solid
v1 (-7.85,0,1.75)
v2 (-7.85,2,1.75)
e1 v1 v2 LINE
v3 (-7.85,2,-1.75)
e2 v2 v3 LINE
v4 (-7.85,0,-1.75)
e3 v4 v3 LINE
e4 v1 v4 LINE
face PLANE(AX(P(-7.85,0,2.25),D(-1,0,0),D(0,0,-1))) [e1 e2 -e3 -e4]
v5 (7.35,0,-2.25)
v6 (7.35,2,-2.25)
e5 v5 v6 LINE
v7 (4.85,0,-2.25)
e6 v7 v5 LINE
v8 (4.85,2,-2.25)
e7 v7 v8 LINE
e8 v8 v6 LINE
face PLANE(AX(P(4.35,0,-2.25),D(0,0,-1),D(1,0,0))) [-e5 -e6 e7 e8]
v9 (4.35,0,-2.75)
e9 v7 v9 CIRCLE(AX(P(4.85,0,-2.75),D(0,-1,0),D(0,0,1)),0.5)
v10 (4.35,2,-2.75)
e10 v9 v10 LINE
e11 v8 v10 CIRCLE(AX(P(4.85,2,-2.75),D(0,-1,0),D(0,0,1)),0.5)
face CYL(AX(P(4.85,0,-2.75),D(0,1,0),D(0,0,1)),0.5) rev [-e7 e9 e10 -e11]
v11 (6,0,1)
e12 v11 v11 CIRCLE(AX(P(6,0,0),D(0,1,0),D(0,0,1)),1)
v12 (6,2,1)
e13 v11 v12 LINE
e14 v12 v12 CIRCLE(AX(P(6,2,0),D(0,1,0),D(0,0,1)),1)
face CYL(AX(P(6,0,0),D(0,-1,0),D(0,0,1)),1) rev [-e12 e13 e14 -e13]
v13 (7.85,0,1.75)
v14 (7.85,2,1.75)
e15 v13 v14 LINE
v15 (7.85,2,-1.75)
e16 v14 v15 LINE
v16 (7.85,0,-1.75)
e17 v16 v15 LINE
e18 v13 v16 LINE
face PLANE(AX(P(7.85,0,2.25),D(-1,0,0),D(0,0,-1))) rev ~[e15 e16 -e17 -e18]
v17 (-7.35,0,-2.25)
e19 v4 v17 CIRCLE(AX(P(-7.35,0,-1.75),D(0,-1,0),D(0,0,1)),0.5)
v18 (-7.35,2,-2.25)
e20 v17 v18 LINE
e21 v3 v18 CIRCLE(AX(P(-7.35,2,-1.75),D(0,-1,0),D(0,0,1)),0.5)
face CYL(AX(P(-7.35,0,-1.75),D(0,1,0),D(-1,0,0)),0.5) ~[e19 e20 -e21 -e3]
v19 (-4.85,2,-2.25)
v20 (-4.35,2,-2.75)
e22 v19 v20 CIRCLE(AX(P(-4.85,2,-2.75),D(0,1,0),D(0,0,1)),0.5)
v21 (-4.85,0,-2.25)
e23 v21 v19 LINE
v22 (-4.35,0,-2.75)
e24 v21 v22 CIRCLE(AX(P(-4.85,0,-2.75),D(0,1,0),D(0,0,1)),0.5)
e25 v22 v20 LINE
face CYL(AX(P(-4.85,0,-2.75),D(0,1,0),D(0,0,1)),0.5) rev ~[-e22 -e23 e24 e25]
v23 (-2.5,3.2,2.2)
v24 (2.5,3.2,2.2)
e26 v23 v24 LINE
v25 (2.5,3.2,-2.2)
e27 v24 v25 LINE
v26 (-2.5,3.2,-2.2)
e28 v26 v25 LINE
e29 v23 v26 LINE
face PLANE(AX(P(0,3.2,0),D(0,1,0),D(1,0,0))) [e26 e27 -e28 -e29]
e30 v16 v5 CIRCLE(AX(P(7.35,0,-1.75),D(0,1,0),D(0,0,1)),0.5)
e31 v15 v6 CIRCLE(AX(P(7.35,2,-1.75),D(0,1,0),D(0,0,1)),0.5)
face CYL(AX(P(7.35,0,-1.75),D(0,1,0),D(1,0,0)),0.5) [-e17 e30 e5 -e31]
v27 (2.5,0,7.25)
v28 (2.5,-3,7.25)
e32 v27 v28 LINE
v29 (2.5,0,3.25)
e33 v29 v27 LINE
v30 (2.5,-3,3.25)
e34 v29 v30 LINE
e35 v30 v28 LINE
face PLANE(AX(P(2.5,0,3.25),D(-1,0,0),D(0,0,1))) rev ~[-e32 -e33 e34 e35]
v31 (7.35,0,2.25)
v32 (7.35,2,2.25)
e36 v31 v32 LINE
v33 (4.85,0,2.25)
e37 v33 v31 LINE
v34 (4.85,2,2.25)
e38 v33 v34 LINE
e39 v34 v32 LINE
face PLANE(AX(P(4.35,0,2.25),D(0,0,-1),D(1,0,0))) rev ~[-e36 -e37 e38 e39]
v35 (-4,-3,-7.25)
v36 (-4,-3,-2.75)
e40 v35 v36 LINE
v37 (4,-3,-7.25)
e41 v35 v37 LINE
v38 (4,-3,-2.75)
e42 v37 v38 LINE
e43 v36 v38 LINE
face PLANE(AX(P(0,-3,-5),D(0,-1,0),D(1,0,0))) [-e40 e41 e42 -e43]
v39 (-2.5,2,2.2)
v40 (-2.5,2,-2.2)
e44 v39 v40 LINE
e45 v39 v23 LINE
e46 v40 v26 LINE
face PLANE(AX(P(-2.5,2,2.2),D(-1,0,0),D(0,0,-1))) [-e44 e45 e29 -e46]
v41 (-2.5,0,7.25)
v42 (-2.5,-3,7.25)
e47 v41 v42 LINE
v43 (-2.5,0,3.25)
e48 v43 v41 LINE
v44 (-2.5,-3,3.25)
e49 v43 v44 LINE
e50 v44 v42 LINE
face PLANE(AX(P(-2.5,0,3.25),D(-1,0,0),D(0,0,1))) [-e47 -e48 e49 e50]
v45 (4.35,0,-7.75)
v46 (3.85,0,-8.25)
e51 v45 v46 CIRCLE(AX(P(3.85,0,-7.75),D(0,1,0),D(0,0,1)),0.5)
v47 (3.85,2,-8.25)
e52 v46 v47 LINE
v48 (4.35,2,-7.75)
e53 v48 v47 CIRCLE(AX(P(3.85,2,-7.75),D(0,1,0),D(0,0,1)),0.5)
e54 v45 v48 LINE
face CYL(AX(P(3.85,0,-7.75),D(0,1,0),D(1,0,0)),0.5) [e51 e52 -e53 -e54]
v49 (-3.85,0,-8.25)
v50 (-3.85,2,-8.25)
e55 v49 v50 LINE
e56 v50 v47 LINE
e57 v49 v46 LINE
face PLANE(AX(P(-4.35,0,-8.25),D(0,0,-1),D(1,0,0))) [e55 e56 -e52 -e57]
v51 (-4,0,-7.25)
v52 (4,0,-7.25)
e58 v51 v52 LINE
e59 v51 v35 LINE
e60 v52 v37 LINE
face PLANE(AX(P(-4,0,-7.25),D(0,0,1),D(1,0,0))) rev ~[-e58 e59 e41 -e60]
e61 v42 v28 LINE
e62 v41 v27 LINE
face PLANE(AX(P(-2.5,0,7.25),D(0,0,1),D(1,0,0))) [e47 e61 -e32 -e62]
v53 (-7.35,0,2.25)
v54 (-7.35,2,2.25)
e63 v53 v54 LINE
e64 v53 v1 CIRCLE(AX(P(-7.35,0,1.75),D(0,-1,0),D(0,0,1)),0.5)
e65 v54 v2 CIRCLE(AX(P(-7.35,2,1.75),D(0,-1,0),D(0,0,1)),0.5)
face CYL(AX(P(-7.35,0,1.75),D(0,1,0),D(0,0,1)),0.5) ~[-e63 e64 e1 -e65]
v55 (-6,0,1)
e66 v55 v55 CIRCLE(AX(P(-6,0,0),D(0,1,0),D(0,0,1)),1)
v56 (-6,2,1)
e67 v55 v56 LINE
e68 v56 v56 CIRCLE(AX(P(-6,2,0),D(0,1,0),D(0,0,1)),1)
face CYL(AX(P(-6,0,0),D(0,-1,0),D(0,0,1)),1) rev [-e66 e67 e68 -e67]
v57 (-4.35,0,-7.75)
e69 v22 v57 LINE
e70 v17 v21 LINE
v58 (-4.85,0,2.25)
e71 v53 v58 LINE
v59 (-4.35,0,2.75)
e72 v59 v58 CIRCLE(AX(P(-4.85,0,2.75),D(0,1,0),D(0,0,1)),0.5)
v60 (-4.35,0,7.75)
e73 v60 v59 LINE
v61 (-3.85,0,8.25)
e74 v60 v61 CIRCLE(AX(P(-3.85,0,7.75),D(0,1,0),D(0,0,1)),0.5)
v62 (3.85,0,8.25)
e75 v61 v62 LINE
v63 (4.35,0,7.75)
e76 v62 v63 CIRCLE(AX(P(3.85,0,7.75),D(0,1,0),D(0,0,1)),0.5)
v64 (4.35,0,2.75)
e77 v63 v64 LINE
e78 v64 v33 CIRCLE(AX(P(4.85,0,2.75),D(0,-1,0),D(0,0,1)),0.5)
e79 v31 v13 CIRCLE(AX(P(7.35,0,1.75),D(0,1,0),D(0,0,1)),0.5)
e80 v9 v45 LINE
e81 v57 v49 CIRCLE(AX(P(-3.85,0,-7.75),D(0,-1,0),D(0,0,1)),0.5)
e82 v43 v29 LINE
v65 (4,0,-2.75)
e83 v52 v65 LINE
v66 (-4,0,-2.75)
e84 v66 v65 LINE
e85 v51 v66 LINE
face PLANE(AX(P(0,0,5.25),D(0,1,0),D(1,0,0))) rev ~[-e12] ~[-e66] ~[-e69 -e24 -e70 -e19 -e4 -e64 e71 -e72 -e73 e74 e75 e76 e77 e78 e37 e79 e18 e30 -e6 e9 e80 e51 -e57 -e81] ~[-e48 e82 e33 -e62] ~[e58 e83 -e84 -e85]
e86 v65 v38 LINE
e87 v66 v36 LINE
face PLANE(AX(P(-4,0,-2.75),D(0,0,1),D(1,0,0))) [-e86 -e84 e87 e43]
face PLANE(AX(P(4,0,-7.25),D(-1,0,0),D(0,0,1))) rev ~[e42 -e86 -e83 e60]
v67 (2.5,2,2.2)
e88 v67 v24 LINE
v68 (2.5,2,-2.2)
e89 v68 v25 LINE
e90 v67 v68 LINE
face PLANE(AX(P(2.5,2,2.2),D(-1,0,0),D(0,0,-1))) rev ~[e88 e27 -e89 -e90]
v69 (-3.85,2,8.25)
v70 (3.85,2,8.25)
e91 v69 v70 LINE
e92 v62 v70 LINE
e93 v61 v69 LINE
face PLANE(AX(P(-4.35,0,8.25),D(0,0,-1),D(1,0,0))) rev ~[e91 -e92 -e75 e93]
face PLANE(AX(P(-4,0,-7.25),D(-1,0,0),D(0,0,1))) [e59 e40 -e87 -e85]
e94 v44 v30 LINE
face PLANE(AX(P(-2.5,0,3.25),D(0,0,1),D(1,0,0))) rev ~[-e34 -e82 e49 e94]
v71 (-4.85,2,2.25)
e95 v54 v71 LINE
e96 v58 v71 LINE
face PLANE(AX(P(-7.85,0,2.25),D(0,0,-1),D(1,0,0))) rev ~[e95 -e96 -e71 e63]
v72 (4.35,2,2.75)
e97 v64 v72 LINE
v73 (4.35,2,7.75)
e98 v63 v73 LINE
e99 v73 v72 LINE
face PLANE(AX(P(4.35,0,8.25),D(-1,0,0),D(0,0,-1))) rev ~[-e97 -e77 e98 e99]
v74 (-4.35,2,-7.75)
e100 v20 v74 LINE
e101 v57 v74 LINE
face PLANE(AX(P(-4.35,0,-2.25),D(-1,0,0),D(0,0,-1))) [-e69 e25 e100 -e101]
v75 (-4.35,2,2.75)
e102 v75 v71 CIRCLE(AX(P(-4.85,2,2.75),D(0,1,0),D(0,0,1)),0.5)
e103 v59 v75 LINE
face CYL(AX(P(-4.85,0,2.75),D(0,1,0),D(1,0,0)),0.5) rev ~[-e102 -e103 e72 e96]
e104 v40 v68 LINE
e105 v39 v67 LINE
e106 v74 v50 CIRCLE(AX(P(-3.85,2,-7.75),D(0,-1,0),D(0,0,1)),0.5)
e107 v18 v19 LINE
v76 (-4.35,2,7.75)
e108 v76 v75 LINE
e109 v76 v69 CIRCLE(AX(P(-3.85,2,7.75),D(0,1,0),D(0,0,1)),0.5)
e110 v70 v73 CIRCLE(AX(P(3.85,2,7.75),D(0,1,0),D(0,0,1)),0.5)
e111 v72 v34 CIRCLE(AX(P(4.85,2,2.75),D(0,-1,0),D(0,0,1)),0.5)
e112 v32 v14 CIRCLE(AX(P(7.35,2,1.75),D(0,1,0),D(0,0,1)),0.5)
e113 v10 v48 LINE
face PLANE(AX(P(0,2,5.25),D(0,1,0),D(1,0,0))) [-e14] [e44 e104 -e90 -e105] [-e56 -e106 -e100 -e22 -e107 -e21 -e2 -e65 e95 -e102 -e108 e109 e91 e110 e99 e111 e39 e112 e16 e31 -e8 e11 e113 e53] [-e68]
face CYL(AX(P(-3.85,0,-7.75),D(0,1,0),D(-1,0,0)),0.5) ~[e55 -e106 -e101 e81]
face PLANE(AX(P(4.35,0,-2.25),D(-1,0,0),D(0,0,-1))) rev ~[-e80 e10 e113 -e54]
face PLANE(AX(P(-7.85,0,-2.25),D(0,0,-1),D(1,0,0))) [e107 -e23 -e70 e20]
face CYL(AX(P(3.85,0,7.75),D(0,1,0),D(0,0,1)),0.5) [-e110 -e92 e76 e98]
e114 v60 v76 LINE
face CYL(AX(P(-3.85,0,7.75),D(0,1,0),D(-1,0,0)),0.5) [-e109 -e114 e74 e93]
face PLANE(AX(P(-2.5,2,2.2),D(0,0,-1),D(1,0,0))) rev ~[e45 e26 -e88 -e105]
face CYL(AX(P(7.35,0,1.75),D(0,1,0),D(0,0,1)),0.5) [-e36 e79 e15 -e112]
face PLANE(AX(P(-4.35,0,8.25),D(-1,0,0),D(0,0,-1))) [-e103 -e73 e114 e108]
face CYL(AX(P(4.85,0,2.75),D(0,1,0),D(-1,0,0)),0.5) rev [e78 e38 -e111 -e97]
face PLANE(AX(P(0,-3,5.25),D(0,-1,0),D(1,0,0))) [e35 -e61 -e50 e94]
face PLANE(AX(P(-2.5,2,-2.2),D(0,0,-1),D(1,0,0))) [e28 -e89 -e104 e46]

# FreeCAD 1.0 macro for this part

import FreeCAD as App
import Part
import Sketcher


def edges_at(feature, points):
    """Names of the edges that pass closest to the given points."""
    edges = feature.Shape.Edges
    near = lambda p: min(range(len(edges)), key=lambda i: edges[i].distToShape(Part.Vertex(*p))[0])
    return sorted({f"Edge{near(p) + 1}" for p in points})


def add_polygon(sketch, points):
    """Adds a closed chain of lines whose ends are joined by coincident constraints."""
    first, n = sketch.GeometryCount, len(points)
    for a, b in zip(points, points[1:] + points[:1]):
        sketch.addGeometry(Part.LineSegment(App.Vector(*a, 0), App.Vector(*b, 0)), False)
    for i in range(n):
        sketch.addConstraint(Sketcher.Constraint("Coincident", first + i, 2, first + (i + 1) % n, 1))

doc = App.newDocument("Part")
body = doc.addObject("PartDesign::Body", "Body")

sketch1 = body.newObject("Sketcher::SketchObject", "Sketch")
sketch1.AttachmentSupport = (doc.getObject("XZ_Plane"), [""])
sketch1.MapMode = "FlatFace"
add_polygon(sketch1, [(-4.3, -8.2), (-4.3, -2.2), (-7.8, -2.2), (-7.8, 2.2), (-4.3, 2.2), (-4.3, 8.2), (4.3, 8.2), (4.3, 2.2), (7.8, 2.2), (7.8, -2.2), (4.3, -2.2), (4.3, -8.2)])
sketch1.addGeometry(Part.Circle(App.Vector(-6, 0, 0), App.Vector(0, 0, 1), 1), False)
sketch1.addGeometry(Part.Circle(App.Vector(6, 0, 0), App.Vector(0, 0, 1), 1), False)
sketch1.addConstraint([
    Sketcher.Constraint("Vertical", 0),
    Sketcher.Constraint("Horizontal", 1),
    Sketcher.Constraint("Vertical", 2),
    Sketcher.Constraint("Horizontal", 3),
    Sketcher.Constraint("Vertical", 4),
    Sketcher.Constraint("Horizontal", 5),
    Sketcher.Constraint("Vertical", 6),
    Sketcher.Constraint("Horizontal", 7),
    Sketcher.Constraint("Vertical", 8),
    Sketcher.Constraint("Horizontal", 9),
    Sketcher.Constraint("Vertical", 10),
    Sketcher.Constraint("Horizontal", 11),
    Sketcher.Constraint("Equal", 12, 13),
    Sketcher.Constraint("Symmetric", 12, 3, 13, 3, -1, 1),
    Sketcher.Constraint("Symmetric", 0, 2, 6, 2, -1, 1),
    Sketcher.Constraint("Symmetric", 2, 2, 8, 2, -1, 1),
    Sketcher.Constraint("Symmetric", 4, 2, 10, 2, -1, 1),
    Sketcher.Constraint("Symmetric", 3, 2, 6, 2, -2),
    Sketcher.Constraint("PointOnObject", 12, 3, -1),
    Sketcher.Constraint("Diameter", 12, 2.0),
    Sketcher.Constraint("DistanceY", 0, 1, 0, 2, 6.0),
    Sketcher.Constraint("DistanceX", 1, 2, 1, 1, 3.5),
    Sketcher.Constraint("DistanceX", 5, 1, 5, 2, 8.7),
    Sketcher.Constraint("DistanceY", 2, 1, 2, 2, 4.5),
    Sketcher.Constraint("DistanceX", 12, 3, -1, 1, 6.0),
])
pad1 = body.newObject("PartDesign::Pad", "Pad")
pad1.Profile = sketch1
pad1.Length = 2
pad1.Reversed = True
doc.recompute()

fillet = body.newObject("PartDesign::Fillet", "Fillet")
fillet.Base = (pad1, edges_at(pad1, [
    (-4.35, 1, -8.25),
    (4.35, 1, -8.25),
    (4.35, 1, -2.25),
    (7.85, 1, -2.25),
    (7.85, 1, 2.25),
    (4.35, 1, 2.25),
    (4.35, 1, 8.25),
    (-4.35, 1, 8.25),
    (-4.35, 1, 2.25),
    (-7.85, 1, 2.25),
    (-7.85, 1, -2.25),
    (-4.35, 1, -2.25),
]))
fillet.Radius = 0.5

sketch2 = body.newObject("Sketcher::SketchObject", "Sketch001")
sketch2.AttachmentSupport = (doc.getObject("XZ_Plane"), [""])
sketch2.MapMode = "FlatFace"
add_polygon(sketch2, [(-4, -2.8), (-4, -7.2), (4, -7.2), (4, -2.8)])
add_polygon(sketch2, [(-2.5, 7.2), (-2.5, 3.2), (2.5, 3.2), (2.5, 7.2)])
sketch2.addConstraint([
    Sketcher.Constraint("Vertical", 0),
    Sketcher.Constraint("Horizontal", 1),
    Sketcher.Constraint("Vertical", 2),
    Sketcher.Constraint("Horizontal", 3),
    Sketcher.Constraint("Vertical", 4),
    Sketcher.Constraint("Horizontal", 5),
    Sketcher.Constraint("Vertical", 6),
    Sketcher.Constraint("Horizontal", 7),
    Sketcher.Constraint("DistanceX", 1, 1, 1, 2, 8.0),
    Sketcher.Constraint("DistanceX", 5, 1, 5, 2, 5.0),
    Sketcher.Constraint("DistanceY", 4, 2, 4, 1, 4.0),
    Sketcher.Constraint("DistanceY", 0, 2, 0, 1, 4.5),
    Sketcher.Constraint("DistanceX", 0, 2, -1, 1, 4.0),
    Sketcher.Constraint("DistanceY", 3, 2, 4, 2, 6.0),
    Sketcher.Constraint("DistanceX", 4, 2, -1, 1, 2.5),
    Sketcher.Constraint("DistanceY", 0, 2, -1, 1, 7.25),
])
pad2 = body.newObject("PartDesign::Pad", "Pad001")
pad2.Profile = sketch2
pad2.Length = 3

sketch3 = body.newObject("Sketcher::SketchObject", "Sketch002")
sketch3.AttachmentSupport = (doc.getObject("XZ_Plane"), [""])
sketch3.MapMode = "FlatFace"
sketch3.AttachmentOffset = App.Placement(App.Vector(0, 0, -2), App.Rotation())
add_polygon(sketch3, [(-2.5, -2.2), (-2.5, 2.2), (2.5, 2.2), (2.5, -2.2)])
sketch3.addConstraint([
    Sketcher.Constraint("Vertical", 0),
    Sketcher.Constraint("Horizontal", 1),
    Sketcher.Constraint("Vertical", 2),
    Sketcher.Constraint("Horizontal", 3),
    Sketcher.Constraint("Symmetric", 0, 2, 2, 2, -1, 1),
    Sketcher.Constraint("DistanceX", 1, 1, 1, 2, 5.0),
    Sketcher.Constraint("DistanceY", 0, 1, 0, 2, 4.4),
])
pad3 = body.newObject("PartDesign::Pad", "Pad002")
pad3.Profile = sketch3
pad3.Length = 1.2
pad3.Reversed = True

doc.recompute()
